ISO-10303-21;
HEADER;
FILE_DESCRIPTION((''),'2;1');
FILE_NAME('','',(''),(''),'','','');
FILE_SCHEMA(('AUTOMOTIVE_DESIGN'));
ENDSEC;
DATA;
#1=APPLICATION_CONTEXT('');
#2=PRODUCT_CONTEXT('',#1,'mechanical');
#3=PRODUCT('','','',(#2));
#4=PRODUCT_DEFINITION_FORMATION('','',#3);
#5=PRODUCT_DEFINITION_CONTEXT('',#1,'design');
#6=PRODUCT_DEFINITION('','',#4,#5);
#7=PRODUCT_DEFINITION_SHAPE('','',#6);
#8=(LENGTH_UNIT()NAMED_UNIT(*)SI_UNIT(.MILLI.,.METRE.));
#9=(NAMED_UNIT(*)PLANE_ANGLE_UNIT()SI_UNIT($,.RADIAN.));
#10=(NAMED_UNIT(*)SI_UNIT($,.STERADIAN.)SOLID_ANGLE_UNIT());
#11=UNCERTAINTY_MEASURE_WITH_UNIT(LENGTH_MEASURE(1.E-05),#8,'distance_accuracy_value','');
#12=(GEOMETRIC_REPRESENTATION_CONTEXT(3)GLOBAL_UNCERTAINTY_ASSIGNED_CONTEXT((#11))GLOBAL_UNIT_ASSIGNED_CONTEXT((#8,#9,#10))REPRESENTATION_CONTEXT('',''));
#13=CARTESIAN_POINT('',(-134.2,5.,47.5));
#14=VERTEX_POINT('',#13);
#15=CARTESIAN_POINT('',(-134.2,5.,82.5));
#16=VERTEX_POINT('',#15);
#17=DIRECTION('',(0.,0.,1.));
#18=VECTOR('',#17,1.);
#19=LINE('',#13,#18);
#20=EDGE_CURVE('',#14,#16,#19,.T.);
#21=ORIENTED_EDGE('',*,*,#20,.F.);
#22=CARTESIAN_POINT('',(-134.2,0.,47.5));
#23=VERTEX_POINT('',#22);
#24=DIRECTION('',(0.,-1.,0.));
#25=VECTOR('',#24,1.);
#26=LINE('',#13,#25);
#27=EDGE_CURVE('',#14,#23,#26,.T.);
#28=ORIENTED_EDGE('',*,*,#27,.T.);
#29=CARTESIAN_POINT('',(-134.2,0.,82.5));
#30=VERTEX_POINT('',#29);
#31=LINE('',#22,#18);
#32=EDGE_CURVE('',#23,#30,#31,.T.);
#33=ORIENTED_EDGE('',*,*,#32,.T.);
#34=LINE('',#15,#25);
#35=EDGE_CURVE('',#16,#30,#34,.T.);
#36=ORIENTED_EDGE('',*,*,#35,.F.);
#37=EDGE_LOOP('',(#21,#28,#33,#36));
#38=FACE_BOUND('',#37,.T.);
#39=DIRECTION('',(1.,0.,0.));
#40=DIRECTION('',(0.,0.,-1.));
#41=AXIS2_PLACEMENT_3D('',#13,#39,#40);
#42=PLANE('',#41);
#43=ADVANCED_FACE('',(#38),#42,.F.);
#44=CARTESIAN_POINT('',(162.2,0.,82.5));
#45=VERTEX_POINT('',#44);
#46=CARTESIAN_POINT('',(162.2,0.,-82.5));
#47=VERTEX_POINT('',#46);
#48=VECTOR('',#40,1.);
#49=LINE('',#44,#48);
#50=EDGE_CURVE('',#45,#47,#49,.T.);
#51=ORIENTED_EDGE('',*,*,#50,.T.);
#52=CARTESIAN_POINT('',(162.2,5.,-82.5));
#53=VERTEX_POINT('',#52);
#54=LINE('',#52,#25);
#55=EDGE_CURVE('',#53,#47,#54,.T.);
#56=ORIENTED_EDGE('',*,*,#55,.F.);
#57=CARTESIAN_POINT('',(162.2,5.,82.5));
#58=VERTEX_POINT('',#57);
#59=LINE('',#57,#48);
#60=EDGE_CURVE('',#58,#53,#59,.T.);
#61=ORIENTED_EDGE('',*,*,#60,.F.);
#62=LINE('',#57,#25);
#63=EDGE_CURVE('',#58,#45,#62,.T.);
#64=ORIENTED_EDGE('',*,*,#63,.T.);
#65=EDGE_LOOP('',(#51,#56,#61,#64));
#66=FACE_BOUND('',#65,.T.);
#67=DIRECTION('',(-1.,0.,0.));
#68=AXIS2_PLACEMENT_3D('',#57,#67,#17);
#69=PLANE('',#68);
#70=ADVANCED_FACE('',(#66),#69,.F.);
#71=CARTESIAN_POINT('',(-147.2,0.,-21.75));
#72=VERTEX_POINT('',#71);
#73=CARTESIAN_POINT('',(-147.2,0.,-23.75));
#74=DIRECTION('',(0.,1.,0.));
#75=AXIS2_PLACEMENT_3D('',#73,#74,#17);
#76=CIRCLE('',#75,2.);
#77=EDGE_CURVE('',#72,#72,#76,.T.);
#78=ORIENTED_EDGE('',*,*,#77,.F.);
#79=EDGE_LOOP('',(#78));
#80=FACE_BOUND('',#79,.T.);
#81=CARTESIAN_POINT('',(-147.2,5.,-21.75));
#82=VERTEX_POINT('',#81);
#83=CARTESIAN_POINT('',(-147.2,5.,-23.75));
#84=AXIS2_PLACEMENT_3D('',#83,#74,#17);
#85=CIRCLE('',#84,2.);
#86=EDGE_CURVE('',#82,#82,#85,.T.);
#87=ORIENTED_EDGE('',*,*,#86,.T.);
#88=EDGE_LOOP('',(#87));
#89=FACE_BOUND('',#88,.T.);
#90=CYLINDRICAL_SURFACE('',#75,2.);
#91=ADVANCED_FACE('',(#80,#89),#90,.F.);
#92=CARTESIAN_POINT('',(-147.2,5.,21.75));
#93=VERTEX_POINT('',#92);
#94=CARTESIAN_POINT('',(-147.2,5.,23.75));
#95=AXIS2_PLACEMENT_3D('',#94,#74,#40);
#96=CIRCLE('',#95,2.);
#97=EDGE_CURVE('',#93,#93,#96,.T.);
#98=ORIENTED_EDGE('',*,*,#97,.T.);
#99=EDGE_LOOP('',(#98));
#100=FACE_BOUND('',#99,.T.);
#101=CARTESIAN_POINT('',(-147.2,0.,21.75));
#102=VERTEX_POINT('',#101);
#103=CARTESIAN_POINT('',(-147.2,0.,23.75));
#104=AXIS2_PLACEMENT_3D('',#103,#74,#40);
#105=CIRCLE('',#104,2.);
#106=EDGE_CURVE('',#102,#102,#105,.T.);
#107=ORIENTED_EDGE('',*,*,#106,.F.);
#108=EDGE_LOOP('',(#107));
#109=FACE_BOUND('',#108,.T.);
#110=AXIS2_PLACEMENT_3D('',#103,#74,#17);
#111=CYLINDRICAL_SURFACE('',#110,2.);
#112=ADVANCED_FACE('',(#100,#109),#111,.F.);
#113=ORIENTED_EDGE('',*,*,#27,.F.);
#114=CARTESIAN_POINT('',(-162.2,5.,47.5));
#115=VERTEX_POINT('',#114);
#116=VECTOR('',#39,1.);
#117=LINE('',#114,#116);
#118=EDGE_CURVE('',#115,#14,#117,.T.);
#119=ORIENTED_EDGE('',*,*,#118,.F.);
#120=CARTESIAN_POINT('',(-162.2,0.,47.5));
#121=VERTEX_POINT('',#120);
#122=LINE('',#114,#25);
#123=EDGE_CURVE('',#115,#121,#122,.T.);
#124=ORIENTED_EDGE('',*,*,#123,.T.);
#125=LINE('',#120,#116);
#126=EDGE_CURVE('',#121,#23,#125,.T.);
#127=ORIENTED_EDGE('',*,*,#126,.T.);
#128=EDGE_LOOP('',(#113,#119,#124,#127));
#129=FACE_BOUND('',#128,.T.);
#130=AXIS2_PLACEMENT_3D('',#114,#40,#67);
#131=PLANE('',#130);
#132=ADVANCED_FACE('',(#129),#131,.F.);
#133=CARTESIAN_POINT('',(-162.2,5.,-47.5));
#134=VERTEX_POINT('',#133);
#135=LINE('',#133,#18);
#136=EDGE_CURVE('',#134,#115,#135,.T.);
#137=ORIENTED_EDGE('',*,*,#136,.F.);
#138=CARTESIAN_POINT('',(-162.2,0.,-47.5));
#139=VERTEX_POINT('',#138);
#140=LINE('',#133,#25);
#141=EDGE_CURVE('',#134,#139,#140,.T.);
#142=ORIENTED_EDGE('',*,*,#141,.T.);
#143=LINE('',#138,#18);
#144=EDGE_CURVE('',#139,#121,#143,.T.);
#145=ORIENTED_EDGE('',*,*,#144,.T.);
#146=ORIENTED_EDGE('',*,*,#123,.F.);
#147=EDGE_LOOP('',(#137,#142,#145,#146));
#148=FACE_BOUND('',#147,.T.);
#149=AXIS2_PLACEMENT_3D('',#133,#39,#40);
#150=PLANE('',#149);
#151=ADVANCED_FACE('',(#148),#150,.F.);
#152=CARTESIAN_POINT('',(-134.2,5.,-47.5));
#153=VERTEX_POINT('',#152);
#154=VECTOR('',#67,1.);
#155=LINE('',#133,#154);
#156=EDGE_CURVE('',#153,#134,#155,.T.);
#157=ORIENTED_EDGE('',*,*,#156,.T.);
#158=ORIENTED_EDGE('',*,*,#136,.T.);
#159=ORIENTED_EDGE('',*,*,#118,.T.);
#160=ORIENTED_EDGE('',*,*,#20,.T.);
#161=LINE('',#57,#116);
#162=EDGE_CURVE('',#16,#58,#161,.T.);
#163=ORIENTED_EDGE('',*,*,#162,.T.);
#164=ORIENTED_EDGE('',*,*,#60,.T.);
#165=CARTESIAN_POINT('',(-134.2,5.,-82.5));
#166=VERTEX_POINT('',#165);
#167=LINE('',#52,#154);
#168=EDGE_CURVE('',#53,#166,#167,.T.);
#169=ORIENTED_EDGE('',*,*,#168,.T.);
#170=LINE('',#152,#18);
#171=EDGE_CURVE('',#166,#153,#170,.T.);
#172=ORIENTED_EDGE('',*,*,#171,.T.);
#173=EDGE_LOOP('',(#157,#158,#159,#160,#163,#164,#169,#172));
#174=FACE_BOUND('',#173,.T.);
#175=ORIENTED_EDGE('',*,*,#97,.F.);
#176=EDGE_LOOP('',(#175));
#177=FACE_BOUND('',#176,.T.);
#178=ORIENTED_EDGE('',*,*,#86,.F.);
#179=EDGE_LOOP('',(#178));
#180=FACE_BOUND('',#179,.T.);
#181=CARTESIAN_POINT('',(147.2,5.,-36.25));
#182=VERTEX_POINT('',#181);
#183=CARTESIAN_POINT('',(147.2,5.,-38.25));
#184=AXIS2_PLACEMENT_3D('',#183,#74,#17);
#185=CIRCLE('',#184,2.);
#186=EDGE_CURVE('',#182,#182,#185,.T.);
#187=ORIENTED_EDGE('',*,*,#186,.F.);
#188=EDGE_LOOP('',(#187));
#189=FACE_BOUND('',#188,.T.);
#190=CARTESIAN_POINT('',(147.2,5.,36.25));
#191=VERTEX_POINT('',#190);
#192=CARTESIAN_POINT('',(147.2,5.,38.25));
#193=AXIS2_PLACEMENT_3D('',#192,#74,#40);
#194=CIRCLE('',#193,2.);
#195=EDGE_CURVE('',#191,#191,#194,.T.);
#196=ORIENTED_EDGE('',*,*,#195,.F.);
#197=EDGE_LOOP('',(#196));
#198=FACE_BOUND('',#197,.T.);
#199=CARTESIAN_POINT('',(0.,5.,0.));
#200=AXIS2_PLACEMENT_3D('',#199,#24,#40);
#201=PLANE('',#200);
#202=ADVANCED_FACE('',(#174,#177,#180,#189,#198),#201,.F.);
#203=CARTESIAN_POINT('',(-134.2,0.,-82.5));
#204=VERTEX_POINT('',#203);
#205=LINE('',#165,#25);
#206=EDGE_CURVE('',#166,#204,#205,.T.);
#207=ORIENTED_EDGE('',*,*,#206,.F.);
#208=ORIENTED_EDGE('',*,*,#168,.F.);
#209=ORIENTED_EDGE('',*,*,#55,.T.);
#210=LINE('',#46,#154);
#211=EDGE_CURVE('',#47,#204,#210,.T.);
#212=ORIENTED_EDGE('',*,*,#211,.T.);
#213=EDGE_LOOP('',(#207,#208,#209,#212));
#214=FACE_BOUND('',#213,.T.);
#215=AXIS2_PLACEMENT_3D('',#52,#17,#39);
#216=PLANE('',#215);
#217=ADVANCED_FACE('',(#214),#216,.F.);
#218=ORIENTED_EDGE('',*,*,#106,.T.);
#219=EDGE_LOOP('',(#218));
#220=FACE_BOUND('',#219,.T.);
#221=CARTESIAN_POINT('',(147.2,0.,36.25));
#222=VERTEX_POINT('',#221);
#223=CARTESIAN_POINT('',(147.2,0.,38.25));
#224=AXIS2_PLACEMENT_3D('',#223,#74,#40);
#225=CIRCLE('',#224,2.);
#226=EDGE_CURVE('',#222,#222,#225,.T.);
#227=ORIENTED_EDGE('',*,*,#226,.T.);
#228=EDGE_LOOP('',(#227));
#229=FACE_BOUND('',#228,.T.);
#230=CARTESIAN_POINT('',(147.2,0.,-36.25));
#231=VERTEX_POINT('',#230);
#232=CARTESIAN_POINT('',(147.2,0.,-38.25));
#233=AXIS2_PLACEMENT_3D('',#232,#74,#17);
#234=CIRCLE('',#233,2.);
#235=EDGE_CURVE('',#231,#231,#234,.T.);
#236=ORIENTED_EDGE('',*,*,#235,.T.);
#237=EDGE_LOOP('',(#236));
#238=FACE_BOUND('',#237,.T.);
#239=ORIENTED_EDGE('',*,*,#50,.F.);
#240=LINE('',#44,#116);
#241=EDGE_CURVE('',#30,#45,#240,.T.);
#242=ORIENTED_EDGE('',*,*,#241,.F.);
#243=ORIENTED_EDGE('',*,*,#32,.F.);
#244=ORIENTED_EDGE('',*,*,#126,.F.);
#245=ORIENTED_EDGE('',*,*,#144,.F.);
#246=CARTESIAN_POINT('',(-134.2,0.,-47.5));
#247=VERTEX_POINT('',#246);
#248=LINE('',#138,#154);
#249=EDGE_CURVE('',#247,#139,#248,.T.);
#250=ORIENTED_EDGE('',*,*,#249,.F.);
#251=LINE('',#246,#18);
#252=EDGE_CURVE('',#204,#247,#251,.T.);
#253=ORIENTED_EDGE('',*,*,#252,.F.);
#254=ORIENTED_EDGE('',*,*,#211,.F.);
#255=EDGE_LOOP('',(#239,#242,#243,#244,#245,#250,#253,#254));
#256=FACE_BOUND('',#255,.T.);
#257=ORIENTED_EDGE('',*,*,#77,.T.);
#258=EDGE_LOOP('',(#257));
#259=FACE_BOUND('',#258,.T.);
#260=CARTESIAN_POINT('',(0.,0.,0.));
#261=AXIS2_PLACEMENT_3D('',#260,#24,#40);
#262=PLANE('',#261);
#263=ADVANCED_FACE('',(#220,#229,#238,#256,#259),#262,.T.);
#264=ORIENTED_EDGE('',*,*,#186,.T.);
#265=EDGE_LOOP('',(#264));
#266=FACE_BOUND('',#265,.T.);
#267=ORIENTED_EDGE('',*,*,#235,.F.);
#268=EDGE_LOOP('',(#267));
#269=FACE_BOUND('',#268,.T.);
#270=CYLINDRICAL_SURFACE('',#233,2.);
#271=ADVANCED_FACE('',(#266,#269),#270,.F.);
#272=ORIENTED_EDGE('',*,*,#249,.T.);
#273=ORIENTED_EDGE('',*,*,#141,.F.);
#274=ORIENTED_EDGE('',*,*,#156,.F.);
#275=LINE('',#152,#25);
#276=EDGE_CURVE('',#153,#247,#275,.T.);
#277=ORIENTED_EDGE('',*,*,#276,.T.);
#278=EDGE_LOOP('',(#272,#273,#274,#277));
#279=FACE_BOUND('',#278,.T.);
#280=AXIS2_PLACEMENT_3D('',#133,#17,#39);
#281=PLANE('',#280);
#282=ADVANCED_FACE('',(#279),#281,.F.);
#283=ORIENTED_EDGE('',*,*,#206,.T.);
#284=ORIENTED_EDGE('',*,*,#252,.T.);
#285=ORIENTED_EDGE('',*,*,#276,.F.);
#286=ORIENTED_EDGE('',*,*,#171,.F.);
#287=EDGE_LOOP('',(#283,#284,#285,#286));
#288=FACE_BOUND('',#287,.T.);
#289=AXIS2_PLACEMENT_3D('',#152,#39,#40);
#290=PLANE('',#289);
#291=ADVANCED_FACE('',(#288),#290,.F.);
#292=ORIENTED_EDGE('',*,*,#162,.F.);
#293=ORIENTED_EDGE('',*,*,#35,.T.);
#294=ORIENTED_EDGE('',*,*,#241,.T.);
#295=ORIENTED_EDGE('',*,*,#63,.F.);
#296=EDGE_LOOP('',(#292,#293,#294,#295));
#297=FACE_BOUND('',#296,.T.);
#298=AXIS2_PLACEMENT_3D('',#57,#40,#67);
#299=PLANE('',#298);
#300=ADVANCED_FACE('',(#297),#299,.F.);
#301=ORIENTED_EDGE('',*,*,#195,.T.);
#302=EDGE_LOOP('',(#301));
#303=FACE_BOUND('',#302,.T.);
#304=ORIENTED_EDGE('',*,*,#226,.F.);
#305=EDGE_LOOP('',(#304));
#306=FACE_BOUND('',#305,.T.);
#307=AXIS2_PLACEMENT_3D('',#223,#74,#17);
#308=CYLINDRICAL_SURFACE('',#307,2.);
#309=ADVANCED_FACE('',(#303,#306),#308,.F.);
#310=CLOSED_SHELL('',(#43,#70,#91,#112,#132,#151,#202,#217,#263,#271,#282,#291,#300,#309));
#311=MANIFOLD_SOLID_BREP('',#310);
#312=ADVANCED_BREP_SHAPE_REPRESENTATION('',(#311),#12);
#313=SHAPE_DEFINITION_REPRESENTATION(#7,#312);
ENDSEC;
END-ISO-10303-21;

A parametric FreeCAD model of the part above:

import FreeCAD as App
import Part
import Sketcher

V = App.Vector


def add_polygon(sketch, points):
    """Adds a closed chain of lines whose ends are joined by coincident constraints."""
    first, n = sketch.GeometryCount, len(points)
    for a, b in zip(points, points[1:] + points[:1]):
        sketch.addGeometry(Part.LineSegment(App.Vector(*a, 0), App.Vector(*b, 0)), False)
    for i in range(n):
        sketch.addConstraint(Sketcher.Constraint("Coincident", first + i, 2, first + (i + 1) % n, 1))

doc = App.newDocument("Part")
params = doc.addObject("Spreadsheet::Sheet", "Params")
for row, (alias, value) in enumerate([
    ("sketch1_width", "28 mm"),
    ("sketch1_height", "165 mm"),
    ("sketch1_height2", "35 mm"),
    ("sketch1_width2", "296.4 mm"),
    ("pad1_length", "5 mm"),
    ("sketch2_diameter", "4 mm"),
    ("pocket1_length", "5 mm"),
], start=1):
    params.set(f"A{row}", alias)
    params.set(f"B{row}", "=" + value)
    params.setAlias(f"B{row}", alias)

body = doc.addObject("PartDesign::Body", "Body")

# Sketch on XZ plane
sketch1 = doc.addObject("Sketcher::SketchObject", "Sketch")
body.addObject(sketch1)
sketch1.AttachmentSupport = (doc.XZ_Plane, [""])
sketch1.MapMode = "FlatFace"
add_polygon(sketch1, [(162, 82), (162, -82), (-134, -82), (-134, -48), (-162, -48), (-162, 48), (-134, 48), (-134, 82)])  # lines 0-7
sketch1.addConstraint([
    Sketcher.Constraint("Vertical", 0),
    Sketcher.Constraint("Horizontal", 1),
    Sketcher.Constraint("Vertical", 2),
    Sketcher.Constraint("Horizontal", 3),
    Sketcher.Constraint("Vertical", 4),
    Sketcher.Constraint("Horizontal", 5),
    Sketcher.Constraint("Vertical", 6),
    Sketcher.Constraint("Horizontal", 7),
    Sketcher.Constraint("Symmetric", 2, 2, 5, 2, -1),
    Sketcher.Constraint("Equal", 2, 6),
    Sketcher.Constraint("DistanceX", 3, 2, 3, 1, 28.0),
    Sketcher.Constraint("DistanceY", 0, 2, 0, 1, 165.0),
    Sketcher.Constraint("DistanceY", 2, 1, 2, 2, 35.0),
    Sketcher.Constraint("DistanceX", 1, 2, 1, 1, 296.4),
    Sketcher.Constraint("DistanceX", -1, 1, 0, 2, 162.2),
])
sketch1.setExpression("Constraints[18]", "Params.sketch1_width")
sketch1.setExpression("Constraints[19]", "Params.sketch1_height")
sketch1.setExpression("Constraints[20]", "Params.sketch1_height2")
sketch1.setExpression("Constraints[21]", "Params.sketch1_width2")
pad1 = doc.addObject("PartDesign::Pad", "Pad")
body.addObject(pad1)
pad1.Profile = sketch1
pad1.setExpression("Length", "Params.pad1_length")
pad1.Reversed = True

# Sketch on XZ plane
sketch2 = doc.addObject("Sketcher::SketchObject", "Sketch001")
body.addObject(sketch2)
sketch2.AttachmentSupport = (doc.XZ_Plane, [""])
sketch2.MapMode = "FlatFace"
sketch2.AttachmentOffset = App.Placement(V(0, 0, -5), App.Rotation())
sketch2.addGeometry([
    Part.Circle(V(-147.2, -23.8, 0), V(0, 0, 1), 2),
    Part.Circle(V(147.2, -38.2, 0), V(0, 0, 1), 2),
    Part.Circle(V(147.2, 38.2, 0), V(0, 0, 1), 2),
    Part.Circle(V(-147.2, 23.8, 0), V(0, 0, 1), 2),
], False)
sketch2.addConstraint([
    Sketcher.Constraint("Equal", 0, 1),
    Sketcher.Constraint("Equal", 1, 2),
    Sketcher.Constraint("Equal", 2, 3),
    Sketcher.Constraint("Symmetric", 1, 3, 2, 3, -1),
    Sketcher.Constraint("Symmetric", 0, 3, 3, 3, -1),
    Sketcher.Constraint("Diameter", 0, 4.0),
    Sketcher.Constraint("DistanceY", 0, 3, 2, 3, 62.0),
    Sketcher.Constraint("DistanceX", 0, 3, -1, 1, 147.2),
    Sketcher.Constraint("DistanceX", -1, 1, 1, 3, 147.2),
    Sketcher.Constraint("DistanceY", 1, 3, 0, 3, 14.5),
])
sketch2.setExpression("Constraints[5]", "Params.sketch2_diameter")
pocket1 = doc.addObject("PartDesign::Pocket", "Pocket")
body.addObject(pocket1)
pocket1.Profile = sketch2
pocket1.setExpression("Length", "Params.pocket1_length")
pocket1.Reversed = True

doc.recompute()
